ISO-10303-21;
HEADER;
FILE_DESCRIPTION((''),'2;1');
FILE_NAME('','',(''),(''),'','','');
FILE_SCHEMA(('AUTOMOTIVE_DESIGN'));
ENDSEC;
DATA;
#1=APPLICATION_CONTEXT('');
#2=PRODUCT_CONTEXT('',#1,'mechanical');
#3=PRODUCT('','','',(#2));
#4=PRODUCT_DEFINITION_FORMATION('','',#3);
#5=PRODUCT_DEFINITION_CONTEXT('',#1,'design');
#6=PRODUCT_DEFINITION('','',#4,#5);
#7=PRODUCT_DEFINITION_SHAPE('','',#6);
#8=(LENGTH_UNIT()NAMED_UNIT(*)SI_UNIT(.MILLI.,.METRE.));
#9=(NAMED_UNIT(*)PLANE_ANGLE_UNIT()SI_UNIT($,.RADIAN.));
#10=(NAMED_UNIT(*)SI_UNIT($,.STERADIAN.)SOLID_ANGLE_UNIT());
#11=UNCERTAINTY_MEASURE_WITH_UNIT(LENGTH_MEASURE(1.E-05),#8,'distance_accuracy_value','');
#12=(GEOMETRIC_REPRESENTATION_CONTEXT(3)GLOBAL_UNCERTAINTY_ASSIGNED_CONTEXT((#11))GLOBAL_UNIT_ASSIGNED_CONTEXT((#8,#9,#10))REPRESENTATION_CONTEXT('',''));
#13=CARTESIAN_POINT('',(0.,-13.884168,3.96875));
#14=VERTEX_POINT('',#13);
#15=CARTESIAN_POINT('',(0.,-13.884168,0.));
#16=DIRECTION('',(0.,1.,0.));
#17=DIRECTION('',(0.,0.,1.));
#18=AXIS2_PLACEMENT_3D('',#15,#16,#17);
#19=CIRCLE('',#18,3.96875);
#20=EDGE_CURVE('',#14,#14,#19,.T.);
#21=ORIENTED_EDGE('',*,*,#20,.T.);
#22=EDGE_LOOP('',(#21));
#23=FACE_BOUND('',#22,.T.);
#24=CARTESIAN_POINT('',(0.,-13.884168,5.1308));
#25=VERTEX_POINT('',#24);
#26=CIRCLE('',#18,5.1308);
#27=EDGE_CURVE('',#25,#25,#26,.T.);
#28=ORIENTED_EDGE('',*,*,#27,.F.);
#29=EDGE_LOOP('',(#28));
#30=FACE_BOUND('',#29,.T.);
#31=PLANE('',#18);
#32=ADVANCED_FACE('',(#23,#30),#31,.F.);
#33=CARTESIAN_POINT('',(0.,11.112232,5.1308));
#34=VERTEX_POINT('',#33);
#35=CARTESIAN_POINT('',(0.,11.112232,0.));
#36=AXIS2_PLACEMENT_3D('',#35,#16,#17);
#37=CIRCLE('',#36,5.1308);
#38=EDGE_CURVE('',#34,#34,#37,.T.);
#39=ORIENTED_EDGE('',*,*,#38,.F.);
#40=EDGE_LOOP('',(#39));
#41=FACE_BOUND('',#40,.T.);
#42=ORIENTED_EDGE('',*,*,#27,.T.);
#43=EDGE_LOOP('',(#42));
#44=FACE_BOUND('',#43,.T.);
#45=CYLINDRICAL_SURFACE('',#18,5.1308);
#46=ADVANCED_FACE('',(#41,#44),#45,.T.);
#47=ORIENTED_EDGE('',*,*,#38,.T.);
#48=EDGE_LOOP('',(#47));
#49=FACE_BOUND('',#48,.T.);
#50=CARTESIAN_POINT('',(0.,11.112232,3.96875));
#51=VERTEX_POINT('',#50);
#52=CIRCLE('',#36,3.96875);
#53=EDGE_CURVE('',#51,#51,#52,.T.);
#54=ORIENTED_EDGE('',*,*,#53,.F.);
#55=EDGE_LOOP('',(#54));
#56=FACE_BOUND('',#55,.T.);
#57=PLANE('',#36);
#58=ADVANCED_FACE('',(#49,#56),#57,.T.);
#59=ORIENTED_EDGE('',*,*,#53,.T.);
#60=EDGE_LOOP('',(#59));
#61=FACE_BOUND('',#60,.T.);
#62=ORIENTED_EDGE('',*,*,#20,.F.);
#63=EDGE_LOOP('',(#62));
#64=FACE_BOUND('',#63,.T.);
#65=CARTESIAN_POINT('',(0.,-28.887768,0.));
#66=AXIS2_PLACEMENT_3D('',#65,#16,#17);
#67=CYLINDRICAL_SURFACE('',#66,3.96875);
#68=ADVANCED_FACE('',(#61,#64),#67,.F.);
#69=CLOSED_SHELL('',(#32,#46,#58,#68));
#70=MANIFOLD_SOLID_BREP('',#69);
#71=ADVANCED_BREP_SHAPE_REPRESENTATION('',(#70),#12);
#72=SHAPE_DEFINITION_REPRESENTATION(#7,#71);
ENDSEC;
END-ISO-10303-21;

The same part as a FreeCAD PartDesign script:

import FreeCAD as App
import Part
import Sketcher
Q = App.Units.Quantity

doc = App.newDocument("Part")
params = doc.addObject("Spreadsheet::Sheet", "Params")
for row, (alias, value) in enumerate([
    ("sketch1_diameter", "0.404 in"),
    ("pad1_length", "0.866 in"),
    ("pad1_length2", "3 mm"),
    ("sketch2_diameter", "0.3125 in"),
    ("pocket1_length", "40 mm"),
], start=1):
    params.set(f"A{row}", alias)
    params.set(f"B{row}", "=" + value)
    params.setAlias(f"B{row}", alias)

body = doc.addObject("PartDesign::Body", "Body")

# Sketch on XZ plane
sketch1 = body.newObject("Sketcher::SketchObject", "Sketch")
sketch1.AttachmentSupport = (doc.getObject("XZ_Plane"), [""])
sketch1.MapMode = "FlatFace"
sketch1.AttachmentOffset = App.Placement(App.Vector(0, 0, 10.884168), App.Rotation())
sketch1.addGeometry(Part.Circle(App.Vector(0, 0, 0), App.Vector(0, 0, 1), 5.1308), False)
sketch1.addConstraint([
    Sketcher.Constraint("Coincident", 0, 3, -1, 1),
    Sketcher.Constraint("Diameter", 0, Q("0.404 in")),
])
sketch1.setExpression("Constraints[1]", "Params.sketch1_diameter")
pad1 = body.newObject("PartDesign::Pad", "Pad")
pad1.Profile = sketch1
pad1.Type = "TwoLengths"
pad1.setExpression("Length", "Params.pad1_length")
pad1.setExpression("Length2", "Params.pad1_length2")
pad1.Reversed = True

# Sketch on XZ plane
sketch2 = body.newObject("Sketcher::SketchObject", "Sketch001")
sketch2.AttachmentSupport = (doc.getObject("XZ_Plane"), [""])
sketch2.MapMode = "FlatFace"
sketch2.AttachmentOffset = App.Placement(App.Vector(0, 0, -11.112232), App.Rotation())
sketch2.addGeometry(Part.Circle(App.Vector(0, 0, 0), App.Vector(0, 0, 1), 3.96875), False)
sketch2.addConstraint([
    Sketcher.Constraint("Coincident", 0, 3, -1, 1),
    Sketcher.Constraint("Diameter", 0, Q("0.3125 in")),
])
sketch2.setExpression("Constraints[1]", "Params.sketch2_diameter")
pocket1 = body.newObject("PartDesign::Pocket", "Pocket")
pocket1.Profile = sketch2
pocket1.setExpression("Length", "Params.pocket1_length")
pocket1.Reversed = True

doc.recompute()
